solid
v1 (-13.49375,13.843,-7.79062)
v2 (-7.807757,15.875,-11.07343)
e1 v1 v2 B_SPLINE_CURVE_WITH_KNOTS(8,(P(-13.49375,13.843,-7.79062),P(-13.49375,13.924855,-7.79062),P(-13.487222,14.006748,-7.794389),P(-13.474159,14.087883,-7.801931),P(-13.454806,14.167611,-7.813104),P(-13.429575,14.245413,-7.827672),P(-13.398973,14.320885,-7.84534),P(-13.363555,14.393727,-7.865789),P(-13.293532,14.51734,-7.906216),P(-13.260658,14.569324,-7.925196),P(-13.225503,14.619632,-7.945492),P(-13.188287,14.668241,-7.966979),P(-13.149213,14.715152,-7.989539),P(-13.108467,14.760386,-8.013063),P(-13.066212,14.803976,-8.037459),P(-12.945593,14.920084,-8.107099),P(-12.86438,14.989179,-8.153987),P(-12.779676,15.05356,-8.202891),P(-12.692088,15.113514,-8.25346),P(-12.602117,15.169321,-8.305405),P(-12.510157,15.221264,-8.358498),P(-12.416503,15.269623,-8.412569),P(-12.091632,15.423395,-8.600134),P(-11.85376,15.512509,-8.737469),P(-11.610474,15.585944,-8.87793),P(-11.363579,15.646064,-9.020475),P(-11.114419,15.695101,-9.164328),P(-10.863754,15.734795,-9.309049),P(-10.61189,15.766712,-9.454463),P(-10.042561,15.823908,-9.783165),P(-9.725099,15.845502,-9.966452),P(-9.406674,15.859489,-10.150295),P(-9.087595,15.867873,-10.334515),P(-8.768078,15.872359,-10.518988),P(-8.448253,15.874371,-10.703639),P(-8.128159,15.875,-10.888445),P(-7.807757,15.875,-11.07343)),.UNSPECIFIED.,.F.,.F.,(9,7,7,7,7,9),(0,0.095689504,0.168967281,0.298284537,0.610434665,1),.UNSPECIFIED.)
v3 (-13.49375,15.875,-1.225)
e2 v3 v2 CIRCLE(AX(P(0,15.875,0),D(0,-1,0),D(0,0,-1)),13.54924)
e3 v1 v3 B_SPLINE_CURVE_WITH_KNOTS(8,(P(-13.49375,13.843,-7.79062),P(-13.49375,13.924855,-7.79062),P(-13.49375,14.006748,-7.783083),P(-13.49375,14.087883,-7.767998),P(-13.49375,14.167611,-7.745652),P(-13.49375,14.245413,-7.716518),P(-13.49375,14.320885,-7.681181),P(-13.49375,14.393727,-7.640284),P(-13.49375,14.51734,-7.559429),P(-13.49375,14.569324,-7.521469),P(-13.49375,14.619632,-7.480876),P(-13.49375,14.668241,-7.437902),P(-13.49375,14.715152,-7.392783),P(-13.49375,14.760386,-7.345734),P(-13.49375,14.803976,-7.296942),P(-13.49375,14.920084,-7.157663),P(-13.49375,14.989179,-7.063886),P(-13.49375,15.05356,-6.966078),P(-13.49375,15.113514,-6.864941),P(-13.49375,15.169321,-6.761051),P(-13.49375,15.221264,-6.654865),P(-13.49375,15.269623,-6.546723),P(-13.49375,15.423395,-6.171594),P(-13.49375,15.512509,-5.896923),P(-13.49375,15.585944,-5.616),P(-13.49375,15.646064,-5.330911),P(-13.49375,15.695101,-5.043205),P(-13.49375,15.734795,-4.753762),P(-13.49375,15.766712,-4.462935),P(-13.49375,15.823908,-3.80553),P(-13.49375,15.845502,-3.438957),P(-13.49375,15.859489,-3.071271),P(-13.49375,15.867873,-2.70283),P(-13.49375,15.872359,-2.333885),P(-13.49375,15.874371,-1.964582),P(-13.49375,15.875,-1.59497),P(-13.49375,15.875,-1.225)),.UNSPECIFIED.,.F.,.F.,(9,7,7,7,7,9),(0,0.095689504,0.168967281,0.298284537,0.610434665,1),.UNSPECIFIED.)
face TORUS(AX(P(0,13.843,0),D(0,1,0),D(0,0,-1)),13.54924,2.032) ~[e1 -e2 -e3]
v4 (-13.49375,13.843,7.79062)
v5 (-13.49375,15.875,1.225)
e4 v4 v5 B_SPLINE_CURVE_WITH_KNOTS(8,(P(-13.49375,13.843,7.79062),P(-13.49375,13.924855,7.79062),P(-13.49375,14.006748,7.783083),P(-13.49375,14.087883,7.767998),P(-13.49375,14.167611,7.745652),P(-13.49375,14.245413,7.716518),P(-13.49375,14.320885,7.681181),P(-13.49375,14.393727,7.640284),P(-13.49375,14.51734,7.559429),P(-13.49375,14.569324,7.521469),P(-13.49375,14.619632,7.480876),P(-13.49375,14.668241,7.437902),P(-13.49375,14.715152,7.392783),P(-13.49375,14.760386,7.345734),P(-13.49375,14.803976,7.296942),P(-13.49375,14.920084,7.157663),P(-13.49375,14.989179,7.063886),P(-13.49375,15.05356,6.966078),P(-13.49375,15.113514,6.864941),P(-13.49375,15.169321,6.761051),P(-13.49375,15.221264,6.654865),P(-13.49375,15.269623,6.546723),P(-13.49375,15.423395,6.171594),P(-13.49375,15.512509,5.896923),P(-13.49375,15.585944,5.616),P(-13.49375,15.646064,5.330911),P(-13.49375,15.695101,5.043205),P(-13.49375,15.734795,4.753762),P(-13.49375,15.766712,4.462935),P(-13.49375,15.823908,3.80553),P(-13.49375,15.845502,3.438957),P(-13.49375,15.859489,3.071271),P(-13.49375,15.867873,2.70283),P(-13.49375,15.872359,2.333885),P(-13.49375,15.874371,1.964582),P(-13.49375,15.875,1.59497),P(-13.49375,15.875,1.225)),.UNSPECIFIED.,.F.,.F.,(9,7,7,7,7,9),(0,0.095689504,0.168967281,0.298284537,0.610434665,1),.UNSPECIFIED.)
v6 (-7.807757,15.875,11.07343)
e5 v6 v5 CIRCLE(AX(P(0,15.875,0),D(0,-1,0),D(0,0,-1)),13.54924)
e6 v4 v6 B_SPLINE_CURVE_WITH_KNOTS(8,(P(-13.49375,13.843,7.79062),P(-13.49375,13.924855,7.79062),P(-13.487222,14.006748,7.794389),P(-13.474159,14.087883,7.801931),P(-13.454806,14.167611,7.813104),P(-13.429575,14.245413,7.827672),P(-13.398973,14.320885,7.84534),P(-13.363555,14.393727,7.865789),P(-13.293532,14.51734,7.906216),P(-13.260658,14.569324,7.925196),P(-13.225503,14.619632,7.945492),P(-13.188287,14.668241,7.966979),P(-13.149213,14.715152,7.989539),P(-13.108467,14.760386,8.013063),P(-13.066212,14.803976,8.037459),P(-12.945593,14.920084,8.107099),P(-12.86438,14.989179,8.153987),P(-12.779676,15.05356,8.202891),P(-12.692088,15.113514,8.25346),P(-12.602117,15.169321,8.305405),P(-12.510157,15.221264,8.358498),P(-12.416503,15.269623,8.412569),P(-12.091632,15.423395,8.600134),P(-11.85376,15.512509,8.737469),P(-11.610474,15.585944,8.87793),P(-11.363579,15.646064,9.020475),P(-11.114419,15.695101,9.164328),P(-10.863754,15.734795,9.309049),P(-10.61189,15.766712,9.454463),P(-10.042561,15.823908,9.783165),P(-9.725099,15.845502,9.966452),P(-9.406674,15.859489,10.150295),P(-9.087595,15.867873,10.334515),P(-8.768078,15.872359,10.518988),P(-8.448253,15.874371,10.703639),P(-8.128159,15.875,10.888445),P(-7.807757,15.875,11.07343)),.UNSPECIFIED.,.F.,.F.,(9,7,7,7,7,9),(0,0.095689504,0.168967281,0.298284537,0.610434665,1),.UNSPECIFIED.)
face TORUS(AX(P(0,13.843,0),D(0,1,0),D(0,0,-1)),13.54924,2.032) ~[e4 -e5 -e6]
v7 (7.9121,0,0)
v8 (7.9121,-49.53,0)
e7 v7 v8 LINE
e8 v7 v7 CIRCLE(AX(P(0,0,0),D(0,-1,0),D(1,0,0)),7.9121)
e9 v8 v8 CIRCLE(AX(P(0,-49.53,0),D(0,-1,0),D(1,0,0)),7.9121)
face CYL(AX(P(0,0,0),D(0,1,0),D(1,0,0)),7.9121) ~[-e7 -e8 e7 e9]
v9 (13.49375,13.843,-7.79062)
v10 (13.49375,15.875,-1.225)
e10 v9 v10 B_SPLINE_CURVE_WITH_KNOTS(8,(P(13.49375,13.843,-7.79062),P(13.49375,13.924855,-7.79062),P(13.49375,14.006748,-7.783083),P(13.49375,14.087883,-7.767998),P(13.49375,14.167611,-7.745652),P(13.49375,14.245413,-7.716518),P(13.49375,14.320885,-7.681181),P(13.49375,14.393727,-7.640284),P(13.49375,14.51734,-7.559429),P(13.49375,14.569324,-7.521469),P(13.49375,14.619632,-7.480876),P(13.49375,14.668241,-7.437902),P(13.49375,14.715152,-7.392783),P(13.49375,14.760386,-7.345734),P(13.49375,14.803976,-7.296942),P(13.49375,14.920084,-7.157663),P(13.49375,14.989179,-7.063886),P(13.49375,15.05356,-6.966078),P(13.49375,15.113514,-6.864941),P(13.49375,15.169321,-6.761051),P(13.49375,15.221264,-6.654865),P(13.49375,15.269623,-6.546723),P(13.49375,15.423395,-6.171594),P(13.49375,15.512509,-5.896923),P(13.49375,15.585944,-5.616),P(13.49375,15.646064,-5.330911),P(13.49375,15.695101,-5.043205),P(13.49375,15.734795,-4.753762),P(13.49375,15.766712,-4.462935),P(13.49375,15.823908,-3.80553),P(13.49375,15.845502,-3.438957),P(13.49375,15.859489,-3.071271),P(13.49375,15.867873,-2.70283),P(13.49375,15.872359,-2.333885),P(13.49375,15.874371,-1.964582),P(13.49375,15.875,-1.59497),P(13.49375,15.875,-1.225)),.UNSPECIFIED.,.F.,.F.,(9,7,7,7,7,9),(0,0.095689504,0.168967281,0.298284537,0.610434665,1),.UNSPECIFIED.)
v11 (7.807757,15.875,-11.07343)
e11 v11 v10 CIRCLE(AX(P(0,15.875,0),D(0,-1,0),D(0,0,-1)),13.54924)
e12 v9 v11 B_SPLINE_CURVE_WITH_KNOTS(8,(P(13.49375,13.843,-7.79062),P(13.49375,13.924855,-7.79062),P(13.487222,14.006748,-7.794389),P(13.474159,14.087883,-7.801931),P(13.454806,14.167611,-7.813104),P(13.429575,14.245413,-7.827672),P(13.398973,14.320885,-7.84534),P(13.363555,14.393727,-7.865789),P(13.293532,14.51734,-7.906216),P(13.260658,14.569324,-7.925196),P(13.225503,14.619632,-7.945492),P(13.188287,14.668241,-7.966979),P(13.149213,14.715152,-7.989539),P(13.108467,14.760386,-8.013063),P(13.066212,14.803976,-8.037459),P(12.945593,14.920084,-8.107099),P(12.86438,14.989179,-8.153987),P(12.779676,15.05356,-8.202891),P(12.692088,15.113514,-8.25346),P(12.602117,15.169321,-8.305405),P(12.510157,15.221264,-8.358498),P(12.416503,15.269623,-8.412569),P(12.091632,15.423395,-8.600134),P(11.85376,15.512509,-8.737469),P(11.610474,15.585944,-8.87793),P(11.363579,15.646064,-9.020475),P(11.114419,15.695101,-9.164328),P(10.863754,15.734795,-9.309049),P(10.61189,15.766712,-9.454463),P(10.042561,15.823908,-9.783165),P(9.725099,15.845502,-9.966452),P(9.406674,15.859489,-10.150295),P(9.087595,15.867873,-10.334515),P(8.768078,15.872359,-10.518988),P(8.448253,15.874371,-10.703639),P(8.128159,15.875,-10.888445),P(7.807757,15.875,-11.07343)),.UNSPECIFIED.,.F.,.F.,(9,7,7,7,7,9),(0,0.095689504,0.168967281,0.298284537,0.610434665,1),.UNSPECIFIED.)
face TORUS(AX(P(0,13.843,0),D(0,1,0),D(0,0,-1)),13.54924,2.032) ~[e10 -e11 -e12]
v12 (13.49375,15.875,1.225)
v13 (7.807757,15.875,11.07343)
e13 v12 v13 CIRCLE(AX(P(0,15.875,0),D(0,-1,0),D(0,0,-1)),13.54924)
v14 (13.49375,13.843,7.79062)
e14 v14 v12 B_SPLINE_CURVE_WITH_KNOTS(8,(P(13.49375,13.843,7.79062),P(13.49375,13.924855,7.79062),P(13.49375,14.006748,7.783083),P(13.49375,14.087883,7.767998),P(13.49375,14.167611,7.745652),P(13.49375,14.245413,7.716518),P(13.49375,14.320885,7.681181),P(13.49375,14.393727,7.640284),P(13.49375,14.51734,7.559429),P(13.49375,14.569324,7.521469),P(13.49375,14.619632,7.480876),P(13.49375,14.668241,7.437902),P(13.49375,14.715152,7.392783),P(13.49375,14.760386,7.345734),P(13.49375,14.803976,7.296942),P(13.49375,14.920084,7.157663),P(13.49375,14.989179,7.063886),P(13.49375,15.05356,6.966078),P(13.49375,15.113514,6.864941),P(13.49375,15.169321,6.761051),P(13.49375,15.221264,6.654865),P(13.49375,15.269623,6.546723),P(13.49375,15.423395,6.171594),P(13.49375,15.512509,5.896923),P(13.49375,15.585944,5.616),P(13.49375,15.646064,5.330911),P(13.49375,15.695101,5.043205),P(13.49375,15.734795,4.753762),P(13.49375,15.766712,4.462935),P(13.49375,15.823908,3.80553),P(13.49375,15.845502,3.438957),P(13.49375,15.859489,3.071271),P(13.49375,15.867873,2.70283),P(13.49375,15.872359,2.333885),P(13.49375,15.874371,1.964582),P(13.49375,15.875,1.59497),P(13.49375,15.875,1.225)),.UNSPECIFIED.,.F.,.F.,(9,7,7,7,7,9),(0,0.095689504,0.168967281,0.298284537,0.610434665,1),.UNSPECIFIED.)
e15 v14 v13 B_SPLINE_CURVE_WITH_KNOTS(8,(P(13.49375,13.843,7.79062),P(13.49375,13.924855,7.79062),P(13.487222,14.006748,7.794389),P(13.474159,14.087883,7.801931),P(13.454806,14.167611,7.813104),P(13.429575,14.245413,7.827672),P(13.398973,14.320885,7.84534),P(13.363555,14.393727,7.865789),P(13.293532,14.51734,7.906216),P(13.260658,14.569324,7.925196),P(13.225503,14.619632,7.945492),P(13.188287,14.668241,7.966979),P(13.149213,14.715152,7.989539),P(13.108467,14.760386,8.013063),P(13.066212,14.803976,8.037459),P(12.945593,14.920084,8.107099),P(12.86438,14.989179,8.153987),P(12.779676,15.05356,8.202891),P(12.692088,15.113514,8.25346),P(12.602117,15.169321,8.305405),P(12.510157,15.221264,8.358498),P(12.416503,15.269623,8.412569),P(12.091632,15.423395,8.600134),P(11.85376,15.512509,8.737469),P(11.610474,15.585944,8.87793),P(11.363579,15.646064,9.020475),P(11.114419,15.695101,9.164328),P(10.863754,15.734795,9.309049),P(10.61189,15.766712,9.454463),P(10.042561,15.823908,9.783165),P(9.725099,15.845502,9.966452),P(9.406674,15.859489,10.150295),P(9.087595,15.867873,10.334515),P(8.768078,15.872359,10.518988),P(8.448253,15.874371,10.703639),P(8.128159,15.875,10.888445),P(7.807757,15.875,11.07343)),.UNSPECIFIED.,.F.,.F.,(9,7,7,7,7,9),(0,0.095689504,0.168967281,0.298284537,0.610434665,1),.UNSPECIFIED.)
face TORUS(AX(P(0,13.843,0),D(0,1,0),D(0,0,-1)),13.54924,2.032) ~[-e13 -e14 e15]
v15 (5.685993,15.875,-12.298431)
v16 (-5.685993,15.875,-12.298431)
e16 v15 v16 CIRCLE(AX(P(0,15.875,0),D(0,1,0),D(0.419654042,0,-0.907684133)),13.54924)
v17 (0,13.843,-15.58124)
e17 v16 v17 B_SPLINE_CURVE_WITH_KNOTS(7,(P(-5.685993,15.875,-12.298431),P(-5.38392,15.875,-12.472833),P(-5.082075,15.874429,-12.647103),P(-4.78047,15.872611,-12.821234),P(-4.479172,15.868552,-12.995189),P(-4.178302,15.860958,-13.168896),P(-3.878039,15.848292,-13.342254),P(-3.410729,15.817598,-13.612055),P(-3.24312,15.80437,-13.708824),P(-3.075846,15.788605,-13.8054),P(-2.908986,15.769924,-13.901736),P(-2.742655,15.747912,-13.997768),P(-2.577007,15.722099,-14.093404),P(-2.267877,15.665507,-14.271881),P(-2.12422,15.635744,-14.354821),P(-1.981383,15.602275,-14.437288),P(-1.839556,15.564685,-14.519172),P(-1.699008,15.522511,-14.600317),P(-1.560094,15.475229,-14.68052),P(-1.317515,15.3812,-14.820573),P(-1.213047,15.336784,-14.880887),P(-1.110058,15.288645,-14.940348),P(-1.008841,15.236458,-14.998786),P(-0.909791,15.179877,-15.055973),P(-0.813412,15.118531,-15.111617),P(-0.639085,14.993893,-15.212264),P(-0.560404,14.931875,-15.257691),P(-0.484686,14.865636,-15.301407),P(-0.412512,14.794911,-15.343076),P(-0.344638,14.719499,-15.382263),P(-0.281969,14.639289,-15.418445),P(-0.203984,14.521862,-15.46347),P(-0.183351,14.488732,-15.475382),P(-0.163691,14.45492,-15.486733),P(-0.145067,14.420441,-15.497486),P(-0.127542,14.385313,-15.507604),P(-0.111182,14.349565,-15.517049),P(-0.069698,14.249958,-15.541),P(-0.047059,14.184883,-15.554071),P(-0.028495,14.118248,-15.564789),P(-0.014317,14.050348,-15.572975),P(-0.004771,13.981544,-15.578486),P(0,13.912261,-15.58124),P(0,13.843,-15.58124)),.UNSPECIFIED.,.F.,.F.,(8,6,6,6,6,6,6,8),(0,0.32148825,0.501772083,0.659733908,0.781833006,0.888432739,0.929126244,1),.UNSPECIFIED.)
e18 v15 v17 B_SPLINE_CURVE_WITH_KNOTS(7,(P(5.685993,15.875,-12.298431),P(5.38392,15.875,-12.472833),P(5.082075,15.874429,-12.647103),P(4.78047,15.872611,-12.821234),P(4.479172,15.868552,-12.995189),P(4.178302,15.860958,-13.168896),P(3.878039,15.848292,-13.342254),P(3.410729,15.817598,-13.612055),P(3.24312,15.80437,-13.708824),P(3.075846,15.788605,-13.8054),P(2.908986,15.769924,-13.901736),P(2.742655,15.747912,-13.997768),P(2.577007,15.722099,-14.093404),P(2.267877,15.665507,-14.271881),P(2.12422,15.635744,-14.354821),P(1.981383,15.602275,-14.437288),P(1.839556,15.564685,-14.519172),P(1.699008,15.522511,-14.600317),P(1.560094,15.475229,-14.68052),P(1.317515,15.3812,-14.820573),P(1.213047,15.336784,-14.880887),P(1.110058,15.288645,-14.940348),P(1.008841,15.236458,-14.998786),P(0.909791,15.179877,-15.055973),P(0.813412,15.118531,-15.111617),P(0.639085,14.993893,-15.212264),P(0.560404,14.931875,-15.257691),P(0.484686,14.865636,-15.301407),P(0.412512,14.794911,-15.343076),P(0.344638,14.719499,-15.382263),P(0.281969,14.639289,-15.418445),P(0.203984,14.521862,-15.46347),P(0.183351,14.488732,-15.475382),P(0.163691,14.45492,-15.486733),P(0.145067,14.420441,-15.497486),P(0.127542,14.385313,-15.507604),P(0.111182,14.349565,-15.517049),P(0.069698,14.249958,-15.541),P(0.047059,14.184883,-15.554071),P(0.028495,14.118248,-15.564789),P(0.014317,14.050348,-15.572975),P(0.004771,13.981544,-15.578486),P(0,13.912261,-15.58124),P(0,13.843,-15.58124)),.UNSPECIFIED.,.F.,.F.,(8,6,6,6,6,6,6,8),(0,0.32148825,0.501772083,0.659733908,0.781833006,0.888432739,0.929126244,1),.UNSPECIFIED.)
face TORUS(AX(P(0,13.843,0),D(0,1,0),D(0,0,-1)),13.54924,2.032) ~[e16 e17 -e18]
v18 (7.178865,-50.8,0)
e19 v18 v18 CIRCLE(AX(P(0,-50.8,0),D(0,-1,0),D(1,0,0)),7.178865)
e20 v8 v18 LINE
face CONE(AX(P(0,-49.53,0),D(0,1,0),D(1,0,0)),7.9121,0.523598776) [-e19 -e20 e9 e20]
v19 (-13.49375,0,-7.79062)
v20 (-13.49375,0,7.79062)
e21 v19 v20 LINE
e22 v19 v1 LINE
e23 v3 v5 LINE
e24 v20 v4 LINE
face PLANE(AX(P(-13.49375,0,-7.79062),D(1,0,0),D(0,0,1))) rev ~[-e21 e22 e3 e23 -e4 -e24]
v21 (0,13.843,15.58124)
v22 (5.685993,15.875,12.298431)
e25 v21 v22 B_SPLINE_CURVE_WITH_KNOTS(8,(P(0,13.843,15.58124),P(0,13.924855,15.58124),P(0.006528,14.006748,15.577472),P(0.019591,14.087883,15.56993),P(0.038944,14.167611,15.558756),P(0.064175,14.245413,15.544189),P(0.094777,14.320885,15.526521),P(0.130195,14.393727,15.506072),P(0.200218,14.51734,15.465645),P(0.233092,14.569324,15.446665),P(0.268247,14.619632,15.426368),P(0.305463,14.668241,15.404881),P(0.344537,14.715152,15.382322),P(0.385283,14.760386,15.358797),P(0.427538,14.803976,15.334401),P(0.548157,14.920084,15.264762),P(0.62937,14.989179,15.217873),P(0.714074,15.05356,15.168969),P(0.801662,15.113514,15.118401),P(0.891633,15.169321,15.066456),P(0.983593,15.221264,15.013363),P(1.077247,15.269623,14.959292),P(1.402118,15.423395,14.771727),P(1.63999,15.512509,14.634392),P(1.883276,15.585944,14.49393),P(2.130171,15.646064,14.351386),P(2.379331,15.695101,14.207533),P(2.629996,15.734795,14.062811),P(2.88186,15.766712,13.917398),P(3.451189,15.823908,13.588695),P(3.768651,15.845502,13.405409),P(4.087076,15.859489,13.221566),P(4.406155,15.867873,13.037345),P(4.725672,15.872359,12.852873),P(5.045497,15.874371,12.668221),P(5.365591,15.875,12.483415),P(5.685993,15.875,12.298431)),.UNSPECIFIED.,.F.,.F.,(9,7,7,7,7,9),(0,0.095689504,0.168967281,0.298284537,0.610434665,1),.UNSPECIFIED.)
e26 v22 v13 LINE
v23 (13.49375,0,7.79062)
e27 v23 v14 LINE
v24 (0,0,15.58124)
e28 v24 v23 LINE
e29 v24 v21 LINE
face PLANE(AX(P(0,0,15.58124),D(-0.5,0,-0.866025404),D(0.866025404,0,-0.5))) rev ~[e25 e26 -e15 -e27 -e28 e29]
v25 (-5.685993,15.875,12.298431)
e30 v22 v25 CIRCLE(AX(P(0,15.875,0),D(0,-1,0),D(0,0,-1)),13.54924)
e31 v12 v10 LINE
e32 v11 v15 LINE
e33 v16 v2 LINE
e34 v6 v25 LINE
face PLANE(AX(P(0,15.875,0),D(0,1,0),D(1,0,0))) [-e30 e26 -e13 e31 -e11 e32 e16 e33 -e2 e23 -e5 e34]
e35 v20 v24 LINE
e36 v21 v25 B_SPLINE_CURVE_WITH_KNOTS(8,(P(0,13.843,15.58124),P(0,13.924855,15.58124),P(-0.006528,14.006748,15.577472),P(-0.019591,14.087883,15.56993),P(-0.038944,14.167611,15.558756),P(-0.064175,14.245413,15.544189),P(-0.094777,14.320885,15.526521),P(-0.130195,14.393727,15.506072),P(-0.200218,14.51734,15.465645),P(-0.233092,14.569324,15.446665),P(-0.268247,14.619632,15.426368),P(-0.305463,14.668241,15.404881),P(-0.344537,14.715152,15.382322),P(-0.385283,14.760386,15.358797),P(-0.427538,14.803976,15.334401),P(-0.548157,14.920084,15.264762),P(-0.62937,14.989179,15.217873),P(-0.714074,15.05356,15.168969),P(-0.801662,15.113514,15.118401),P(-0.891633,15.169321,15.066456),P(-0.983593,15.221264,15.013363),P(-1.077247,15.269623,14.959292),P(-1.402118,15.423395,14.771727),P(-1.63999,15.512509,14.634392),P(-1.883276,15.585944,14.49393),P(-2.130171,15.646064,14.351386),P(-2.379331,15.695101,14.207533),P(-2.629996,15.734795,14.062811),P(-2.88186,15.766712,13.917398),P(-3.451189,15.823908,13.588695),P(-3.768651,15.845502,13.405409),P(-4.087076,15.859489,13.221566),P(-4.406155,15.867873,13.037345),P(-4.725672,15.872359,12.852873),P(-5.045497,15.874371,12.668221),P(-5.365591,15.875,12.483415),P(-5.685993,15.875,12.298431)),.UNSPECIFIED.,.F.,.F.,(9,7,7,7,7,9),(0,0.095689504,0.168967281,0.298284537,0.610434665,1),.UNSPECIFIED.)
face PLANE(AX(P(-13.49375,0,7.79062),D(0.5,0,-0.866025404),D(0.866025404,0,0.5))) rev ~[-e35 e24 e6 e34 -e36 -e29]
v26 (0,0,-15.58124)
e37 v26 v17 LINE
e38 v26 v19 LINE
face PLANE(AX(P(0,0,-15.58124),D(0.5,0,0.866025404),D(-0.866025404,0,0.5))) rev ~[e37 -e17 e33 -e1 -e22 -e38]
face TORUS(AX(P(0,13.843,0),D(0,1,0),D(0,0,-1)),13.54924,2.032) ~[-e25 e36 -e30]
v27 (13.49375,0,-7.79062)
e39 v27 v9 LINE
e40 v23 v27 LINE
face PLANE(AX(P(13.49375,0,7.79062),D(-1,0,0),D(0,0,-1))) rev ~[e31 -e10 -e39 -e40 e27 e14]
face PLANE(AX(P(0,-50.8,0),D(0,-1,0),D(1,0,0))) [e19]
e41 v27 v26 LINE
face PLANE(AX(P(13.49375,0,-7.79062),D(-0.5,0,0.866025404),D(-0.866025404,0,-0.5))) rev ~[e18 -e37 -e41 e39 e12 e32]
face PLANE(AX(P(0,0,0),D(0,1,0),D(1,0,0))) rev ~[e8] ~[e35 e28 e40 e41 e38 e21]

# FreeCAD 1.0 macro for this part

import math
import FreeCAD as App
import Part
import Sketcher

V = App.Vector
Q = App.Units.Quantity


def edges_at(feature, points):
    """Names of the edges that pass closest to the given points."""
    edges = feature.Shape.Edges
    near = lambda p: min(range(len(edges)), key=lambda i: edges[i].distToShape(Part.Vertex(*p))[0])
    return sorted({f"Edge{near(p) + 1}" for p in points})

doc = App.newDocument("Part")
body = doc.addObject("PartDesign::Body", "Body")

sketch1 = body.newObject("Sketcher::SketchObject", "Sketch")
sketch1.AttachmentSupport = (doc.getObject("XZ_Plane"), [""])
sketch1.MapMode = "FlatFace"
sketch1.addGeometry(Part.LineSegment(V(0, 16, 0), V(13, 8, 0)), False)
sketch1.addGeometry(Part.LineSegment(V(13, 8, 0), V(13, -8, 0)), False)
sketch1.addGeometry(Part.LineSegment(V(13, -8, 0), V(0, -16, 0)), False)
sketch1.addGeometry(Part.LineSegment(V(0, -16, 0), V(-13, -8, 0)), False)
sketch1.addGeometry(Part.LineSegment(V(-13, -8, 0), V(-13, 8, 0)), False)
sketch1.addGeometry(Part.LineSegment(V(-13, 8, 0), V(0, 16, 0)), False)
sketch1.addConstraint(Sketcher.Constraint("Coincident", 0, 2, 1, 1))
sketch1.addConstraint(Sketcher.Constraint("Coincident", 1, 2, 2, 1))
sketch1.addConstraint(Sketcher.Constraint("Coincident", 2, 2, 3, 1))
sketch1.addConstraint(Sketcher.Constraint("Coincident", 3, 2, 4, 1))
sketch1.addConstraint(Sketcher.Constraint("Coincident", 4, 2, 5, 1))
sketch1.addConstraint(Sketcher.Constraint("Coincident", 5, 2, 0, 1))
sketch1.addConstraint(Sketcher.Constraint("Vertical", 1))
sketch1.addConstraint(Sketcher.Constraint("Vertical", 4))
sketch1.addConstraint(Sketcher.Constraint("Symmetric", 0, 2, 3, 2, -1, 1))
sketch1.addConstraint(Sketcher.Constraint("Symmetric", 2, 2, 5, 2, -1, 1))
sketch1.addConstraint(Sketcher.Constraint("PointOnObject", 2, 2, -2))
sketch1.addConstraint(Sketcher.Constraint("Parallel", 2, 5))
sketch1.addConstraint(Sketcher.Constraint("Horizontal", 1, 2, 3, 2))
sketch1.addConstraint(Sketcher.Constraint("Angle", 0, Q("-30 deg")))
sketch1.addConstraint(Sketcher.Constraint("DistanceX", -1, 1, 0, 2, Q("0.53125 in")))
sketch1.addConstraint(Sketcher.Constraint("DistanceY", 1, 2, 1, 1, Q("15.58124 mm")))
pad1 = body.newObject("PartDesign::Pad", "Pad")
pad1.Profile = sketch1
pad1.Length = Q("0.625 in")
pad1.Reversed = True

sketch2 = body.newObject("Sketcher::SketchObject", "Sketch001")
sketch2.AttachmentSupport = (doc.getObject("YZ_Plane"), [""])
sketch2.MapMode = "FlatFace"
sketch2.addGeometry(Part.LineSegment(V(15.9, -15.6, 0), V(15.9, -13.5, 0)), False)
sketch2.addGeometry(Part.ArcOfCircle(Part.Circle(V(13.8, -13.5, 0), V(0, 0, 1), 2), math.radians(-90), math.radians(0)), False)
sketch2.addGeometry(Part.LineSegment(V(13.8, -15.6, 0), V(15.9, -15.6, 0)), False)
sketch2.addConstraint(Sketcher.Constraint("Tangent", 0, 2, 1, 2))
sketch2.addConstraint(Sketcher.Constraint("Tangent", 1, 1, 2, 1))
sketch2.addConstraint(Sketcher.Constraint("Coincident", 2, 2, 0, 1))
sketch2.addConstraint(Sketcher.Constraint("Vertical", 0))
sketch2.addConstraint(Sketcher.Constraint("Horizontal", 2))
sketch2.addConstraint(Sketcher.Constraint("Radius", 1, Q("0.08 in")))
sketch2.addConstraint(Sketcher.Constraint("DistanceX", -1, 1, 1, 3, Q("0.545 in")))
sketch2.addConstraint(Sketcher.Constraint("DistanceY", 1, 3, -1, 1, Q("13.54924 mm")))
groove = body.newObject("PartDesign::Groove", "Groove")
groove.Profile = sketch2
groove.ReferenceAxis = (sketch2, ["H_Axis"])
groove.Angle = 360

sketch3 = body.newObject("Sketcher::SketchObject", "Sketch002")
sketch3.AttachmentSupport = (doc.getObject("XZ_Plane"), [""])
sketch3.MapMode = "FlatFace"
sketch3.addGeometry(Part.Circle(V(0, 0, 0), V(0, 0, 1), 8), False)
sketch3.addConstraint(Sketcher.Constraint("Coincident", 0, 3, -1, 1))
sketch3.addConstraint(Sketcher.Constraint("Diameter", 0, Q("0.623 in")))
pad2 = body.newObject("PartDesign::Pad", "Pad001")
pad2.Profile = sketch3
pad2.Length = Q("2 in")
doc.recompute()

chamfer = body.newObject("PartDesign::Chamfer", "Chamfer")
chamfer.Base = (pad2, edges_at(pad2, [(-7.912, -50.8, 0)]))
chamfer.ChamferType = "Two distances"
chamfer.Size = Q("0.05 in")
chamfer.Size2 = 0.733235

doc.recompute()
